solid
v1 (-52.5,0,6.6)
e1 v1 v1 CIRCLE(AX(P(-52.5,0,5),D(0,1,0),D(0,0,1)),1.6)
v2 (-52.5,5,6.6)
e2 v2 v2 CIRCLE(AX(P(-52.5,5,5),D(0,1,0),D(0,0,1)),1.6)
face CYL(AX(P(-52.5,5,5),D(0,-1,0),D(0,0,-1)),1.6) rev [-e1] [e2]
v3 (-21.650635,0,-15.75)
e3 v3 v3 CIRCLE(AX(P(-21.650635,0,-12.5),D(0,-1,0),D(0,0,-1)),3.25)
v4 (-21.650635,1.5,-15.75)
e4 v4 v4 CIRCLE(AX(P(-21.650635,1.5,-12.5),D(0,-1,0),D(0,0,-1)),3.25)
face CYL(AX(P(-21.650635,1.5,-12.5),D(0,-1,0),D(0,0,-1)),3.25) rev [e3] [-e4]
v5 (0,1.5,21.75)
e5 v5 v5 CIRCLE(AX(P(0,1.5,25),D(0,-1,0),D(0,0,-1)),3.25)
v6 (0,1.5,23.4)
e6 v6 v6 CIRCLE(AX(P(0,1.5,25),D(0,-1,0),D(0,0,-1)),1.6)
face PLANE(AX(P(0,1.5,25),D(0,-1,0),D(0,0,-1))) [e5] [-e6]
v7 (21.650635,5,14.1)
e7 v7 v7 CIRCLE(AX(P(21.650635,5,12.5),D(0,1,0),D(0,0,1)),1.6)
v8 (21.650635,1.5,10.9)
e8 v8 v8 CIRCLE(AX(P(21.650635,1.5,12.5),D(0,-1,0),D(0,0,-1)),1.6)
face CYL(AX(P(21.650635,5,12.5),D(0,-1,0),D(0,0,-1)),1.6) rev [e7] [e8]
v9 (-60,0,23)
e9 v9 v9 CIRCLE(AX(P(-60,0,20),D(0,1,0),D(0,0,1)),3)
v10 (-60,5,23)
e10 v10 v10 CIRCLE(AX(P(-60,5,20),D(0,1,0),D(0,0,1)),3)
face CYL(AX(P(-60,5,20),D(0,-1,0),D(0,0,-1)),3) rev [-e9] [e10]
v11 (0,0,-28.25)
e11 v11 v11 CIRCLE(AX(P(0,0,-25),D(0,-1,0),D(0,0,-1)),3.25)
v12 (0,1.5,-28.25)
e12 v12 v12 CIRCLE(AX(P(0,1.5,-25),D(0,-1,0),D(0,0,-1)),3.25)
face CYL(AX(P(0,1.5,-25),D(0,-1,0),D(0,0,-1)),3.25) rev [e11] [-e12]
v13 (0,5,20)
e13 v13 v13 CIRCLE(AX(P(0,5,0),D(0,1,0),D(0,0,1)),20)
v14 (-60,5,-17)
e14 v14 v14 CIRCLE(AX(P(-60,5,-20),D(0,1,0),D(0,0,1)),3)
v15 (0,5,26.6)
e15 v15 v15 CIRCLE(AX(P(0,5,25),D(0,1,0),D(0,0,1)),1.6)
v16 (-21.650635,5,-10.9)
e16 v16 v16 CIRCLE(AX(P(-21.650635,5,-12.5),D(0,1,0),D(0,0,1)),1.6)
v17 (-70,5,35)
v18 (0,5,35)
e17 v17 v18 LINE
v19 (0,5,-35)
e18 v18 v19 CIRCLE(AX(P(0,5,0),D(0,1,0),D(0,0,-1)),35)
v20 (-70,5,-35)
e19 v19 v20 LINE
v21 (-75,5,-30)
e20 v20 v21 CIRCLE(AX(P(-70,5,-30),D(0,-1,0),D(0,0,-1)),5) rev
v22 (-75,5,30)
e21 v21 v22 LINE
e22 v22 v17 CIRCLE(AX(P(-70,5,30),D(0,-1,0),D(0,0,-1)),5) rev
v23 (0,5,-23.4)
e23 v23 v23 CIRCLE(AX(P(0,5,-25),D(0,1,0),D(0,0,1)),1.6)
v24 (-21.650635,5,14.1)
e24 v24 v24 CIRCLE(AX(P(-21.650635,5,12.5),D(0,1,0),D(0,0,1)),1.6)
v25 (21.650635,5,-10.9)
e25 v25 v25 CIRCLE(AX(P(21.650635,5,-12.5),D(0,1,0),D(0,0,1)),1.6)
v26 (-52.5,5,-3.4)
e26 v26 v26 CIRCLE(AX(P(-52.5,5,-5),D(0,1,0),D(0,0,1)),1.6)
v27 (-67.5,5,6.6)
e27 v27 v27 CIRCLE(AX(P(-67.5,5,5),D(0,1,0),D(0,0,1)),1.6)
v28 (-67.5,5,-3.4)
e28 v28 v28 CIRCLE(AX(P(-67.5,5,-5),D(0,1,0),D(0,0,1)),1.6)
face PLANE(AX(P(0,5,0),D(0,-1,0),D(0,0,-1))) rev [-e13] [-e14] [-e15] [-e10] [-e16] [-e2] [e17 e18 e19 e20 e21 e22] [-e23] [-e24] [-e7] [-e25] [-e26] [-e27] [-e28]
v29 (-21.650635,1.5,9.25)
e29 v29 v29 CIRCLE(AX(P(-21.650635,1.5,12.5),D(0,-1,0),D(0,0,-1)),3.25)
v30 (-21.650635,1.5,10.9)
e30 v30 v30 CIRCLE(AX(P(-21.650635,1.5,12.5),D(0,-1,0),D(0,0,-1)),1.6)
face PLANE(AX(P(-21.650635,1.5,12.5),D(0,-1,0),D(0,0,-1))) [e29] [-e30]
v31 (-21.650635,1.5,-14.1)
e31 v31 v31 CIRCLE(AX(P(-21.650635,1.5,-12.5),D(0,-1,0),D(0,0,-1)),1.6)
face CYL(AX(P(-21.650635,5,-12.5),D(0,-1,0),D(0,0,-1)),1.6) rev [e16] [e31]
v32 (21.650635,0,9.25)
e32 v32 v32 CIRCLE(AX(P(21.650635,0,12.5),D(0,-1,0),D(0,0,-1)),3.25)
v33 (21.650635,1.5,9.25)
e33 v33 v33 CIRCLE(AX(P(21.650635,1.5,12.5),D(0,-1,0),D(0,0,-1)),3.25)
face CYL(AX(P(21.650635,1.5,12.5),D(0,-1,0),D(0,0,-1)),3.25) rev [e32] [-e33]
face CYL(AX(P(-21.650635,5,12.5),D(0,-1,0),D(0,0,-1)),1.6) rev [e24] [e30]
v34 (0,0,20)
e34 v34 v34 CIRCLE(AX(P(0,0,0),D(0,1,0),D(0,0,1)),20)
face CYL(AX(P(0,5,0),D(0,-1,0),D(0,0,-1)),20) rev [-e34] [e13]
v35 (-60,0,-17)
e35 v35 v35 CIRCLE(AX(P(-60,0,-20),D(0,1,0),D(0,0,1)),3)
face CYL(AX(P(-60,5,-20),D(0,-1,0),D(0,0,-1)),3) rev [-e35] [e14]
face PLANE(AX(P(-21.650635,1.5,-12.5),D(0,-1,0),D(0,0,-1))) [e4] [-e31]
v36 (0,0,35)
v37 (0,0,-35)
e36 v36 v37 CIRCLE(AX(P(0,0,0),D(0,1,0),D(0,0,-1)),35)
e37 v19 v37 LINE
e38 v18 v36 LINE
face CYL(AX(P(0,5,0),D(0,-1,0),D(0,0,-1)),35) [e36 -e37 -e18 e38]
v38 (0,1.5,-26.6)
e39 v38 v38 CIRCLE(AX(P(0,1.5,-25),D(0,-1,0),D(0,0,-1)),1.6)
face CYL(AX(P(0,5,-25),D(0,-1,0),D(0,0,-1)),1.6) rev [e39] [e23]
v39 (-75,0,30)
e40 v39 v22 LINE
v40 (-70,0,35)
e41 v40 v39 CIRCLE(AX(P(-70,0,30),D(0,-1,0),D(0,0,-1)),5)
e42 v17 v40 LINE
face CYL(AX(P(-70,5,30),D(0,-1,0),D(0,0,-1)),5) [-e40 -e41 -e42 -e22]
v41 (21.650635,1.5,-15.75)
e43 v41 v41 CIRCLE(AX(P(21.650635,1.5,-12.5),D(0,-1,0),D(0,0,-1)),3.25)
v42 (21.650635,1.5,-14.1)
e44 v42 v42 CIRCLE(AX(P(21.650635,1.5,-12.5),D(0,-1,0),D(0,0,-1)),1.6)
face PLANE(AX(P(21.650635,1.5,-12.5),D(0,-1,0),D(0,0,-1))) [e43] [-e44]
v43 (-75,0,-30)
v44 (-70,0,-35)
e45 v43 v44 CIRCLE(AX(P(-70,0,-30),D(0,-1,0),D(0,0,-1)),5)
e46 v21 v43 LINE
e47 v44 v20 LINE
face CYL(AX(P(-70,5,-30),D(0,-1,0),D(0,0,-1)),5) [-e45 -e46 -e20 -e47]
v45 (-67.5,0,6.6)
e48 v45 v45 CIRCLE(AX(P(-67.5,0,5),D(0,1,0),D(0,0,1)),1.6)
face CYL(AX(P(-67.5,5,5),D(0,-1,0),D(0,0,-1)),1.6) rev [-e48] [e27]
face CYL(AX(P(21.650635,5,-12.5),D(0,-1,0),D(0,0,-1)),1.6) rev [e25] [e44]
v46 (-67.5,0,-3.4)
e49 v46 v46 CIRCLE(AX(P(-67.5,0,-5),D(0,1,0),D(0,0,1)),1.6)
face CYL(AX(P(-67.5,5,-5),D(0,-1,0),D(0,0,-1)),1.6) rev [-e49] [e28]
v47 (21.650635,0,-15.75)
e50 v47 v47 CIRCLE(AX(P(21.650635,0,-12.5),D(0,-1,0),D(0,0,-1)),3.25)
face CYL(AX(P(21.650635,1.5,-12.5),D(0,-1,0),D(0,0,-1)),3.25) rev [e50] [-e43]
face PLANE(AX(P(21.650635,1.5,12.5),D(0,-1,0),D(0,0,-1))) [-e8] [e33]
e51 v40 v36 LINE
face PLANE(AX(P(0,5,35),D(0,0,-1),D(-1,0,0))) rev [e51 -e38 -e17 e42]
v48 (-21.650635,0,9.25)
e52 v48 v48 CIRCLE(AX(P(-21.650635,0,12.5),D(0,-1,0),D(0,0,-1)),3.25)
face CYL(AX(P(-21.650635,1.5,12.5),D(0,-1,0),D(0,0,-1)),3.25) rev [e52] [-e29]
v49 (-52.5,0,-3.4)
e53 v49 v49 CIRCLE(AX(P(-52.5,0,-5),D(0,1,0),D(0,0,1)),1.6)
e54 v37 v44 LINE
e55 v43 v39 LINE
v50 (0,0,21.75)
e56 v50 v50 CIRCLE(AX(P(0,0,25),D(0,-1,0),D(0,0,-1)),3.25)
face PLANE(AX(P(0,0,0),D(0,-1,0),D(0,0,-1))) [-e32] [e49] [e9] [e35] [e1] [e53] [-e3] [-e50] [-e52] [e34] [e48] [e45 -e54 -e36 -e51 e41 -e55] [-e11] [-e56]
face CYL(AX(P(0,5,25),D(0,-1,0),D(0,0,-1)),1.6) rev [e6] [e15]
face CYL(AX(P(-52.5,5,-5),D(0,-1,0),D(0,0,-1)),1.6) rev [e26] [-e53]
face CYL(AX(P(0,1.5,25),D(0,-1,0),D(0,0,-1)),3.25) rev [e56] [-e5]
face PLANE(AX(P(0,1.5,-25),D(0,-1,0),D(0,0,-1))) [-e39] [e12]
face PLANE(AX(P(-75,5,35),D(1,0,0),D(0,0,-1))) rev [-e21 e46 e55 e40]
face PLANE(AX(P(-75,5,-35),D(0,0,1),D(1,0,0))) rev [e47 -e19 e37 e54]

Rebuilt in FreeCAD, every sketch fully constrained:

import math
import FreeCAD as App
import Part
import Sketcher


def edges_at(feature, points):
    """Names of the edges that pass closest to the given points."""
    edges = feature.Shape.Edges
    near = lambda p: min(range(len(edges)), key=lambda i: edges[i].distToShape(Part.Vertex(*p))[0])
    return sorted({f"Edge{near(p) + 1}" for p in points})

doc = App.newDocument("Part")
params = doc.addObject("Spreadsheet::Sheet", "Params")
for row, (alias, value) in enumerate([
    ("sketch1_diameter", "6 mm"),
    ("sketch1_diameter2", "40 mm"),
    ("sketch1_radius", "35 mm"),
    ("sketch1_diameter3", "3.2 mm"),
    ("sketch1_width", "75 mm"),
    ("pad1_length", "5 mm"),
    ("fillet_radius", "5 mm"),
    ("sketch2_diameter", "6.5 mm"),
    ("pocket1_length", "1.5 mm"),
], start=1):
    params.set(f"A{row}", alias)
    params.set(f"B{row}", "=" + value)
    params.setAlias(f"B{row}", alias)

body = doc.addObject("PartDesign::Body", "Body")

sketch1 = doc.addObject("Sketcher::SketchObject", "Sketch")
body.addObject(sketch1)
sketch1.AttachmentSupport = (doc.XZ_Plane, [""])
sketch1.MapMode = "FlatFace"
sketch1.addGeometry([
    Part.LineSegment(App.Vector(0, -35, 0), App.Vector(-75, -35, 0)),
    Part.LineSegment(App.Vector(-75, -35, 0), App.Vector(-75, 35, 0)),
    Part.LineSegment(App.Vector(-75, 35, 0), App.Vector(0, 35, 0)),
    Part.ArcOfCircle(Part.Circle(App.Vector(0, 0, 0), App.Vector(0, 0, 1), 35), math.radians(-90), math.radians(90)),
    Part.Circle(App.Vector(0, 25, 0), App.Vector(0, 0, 1), 1.6),
    Part.Circle(App.Vector(21.650635, 12.5, 0), App.Vector(0, 0, 1), 1.6),
    Part.Circle(App.Vector(-21.650635, 12.5, 0), App.Vector(0, 0, 1), 1.6),
    Part.Circle(App.Vector(-60, 20, 0), App.Vector(0, 0, 1), 3),
    Part.Circle(App.Vector(-52.5, 5, 0), App.Vector(0, 0, 1), 1.6),
    Part.Circle(App.Vector(-67.5, 5, 0), App.Vector(0, 0, 1), 1.6),
    Part.Circle(App.Vector(21.650635, -12.5, 0), App.Vector(0, 0, 1), 1.6),
    Part.Circle(App.Vector(0, 0, 0), App.Vector(0, 0, 1), 20),
    Part.Circle(App.Vector(-21.650635, -12.5, 0), App.Vector(0, 0, 1), 1.6),
    Part.Circle(App.Vector(0, -25, 0), App.Vector(0, 0, 1), 1.6),
    Part.Circle(App.Vector(-52.5, -5, 0), App.Vector(0, 0, 1), 1.6),
    Part.Circle(App.Vector(-67.5, -5, 0), App.Vector(0, 0, 1), 1.6),
    Part.Circle(App.Vector(-60, -20, 0), App.Vector(0, 0, 1), 3),
], False)
sketch1.addConstraint([
    Sketcher.Constraint("Coincident", 0, 2, 1, 1),
    Sketcher.Constraint("Coincident", 1, 2, 2, 1),
    Sketcher.Constraint("Tangent", 2, 2, 3, 2),
    Sketcher.Constraint("Tangent", 3, 1, 0, 1),
    Sketcher.Constraint("Horizontal", 0),
    Sketcher.Constraint("Vertical", 1),
    Sketcher.Constraint("Horizontal", 2),
    Sketcher.Constraint("Coincident", 3, 3, -1, 1),
    Sketcher.Constraint("Coincident", 11, 3, -1, 1),
    Sketcher.Constraint("Equal", 4, 5),
    Sketcher.Constraint("Equal", 5, 6),
    Sketcher.Constraint("Equal", 6, 8),
    Sketcher.Constraint("Equal", 8, 9),
    Sketcher.Constraint("Equal", 9, 10),
    Sketcher.Constraint("Equal", 10, 12),
    Sketcher.Constraint("Equal", 12, 13),
    Sketcher.Constraint("Equal", 13, 14),
    Sketcher.Constraint("Equal", 14, 15),
    Sketcher.Constraint("Equal", 7, 16),
    Sketcher.Constraint("Symmetric", 6, 3, 10, 3, -1, 1),
    Sketcher.Constraint("Symmetric", 5, 3, 12, 3, -1, 1),
    Sketcher.Constraint("Symmetric", 4, 3, 13, 3, -1, 1),
    Sketcher.Constraint("Symmetric", 5, 3, 6, 3, -2),
    Sketcher.Constraint("Symmetric", 8, 3, 14, 3, -1),
    Sketcher.Constraint("Symmetric", 9, 3, 15, 3, -1),
    Sketcher.Constraint("Symmetric", 7, 3, 16, 3, -1),
    Sketcher.Constraint("PointOnObject", 4, 3, -2),
    Sketcher.Constraint("Horizontal", 8, 3, 9, 3),
    Sketcher.Constraint("Diameter", 7, 6.0),
    Sketcher.Constraint("Diameter", 11, 40.0),
    Sketcher.Constraint("Radius", 3, 35.0),
    Sketcher.Constraint("Diameter", 4, 3.2),
    Sketcher.Constraint("DistanceX", 0, 2, 0, 1, 75.0),
    Sketcher.Constraint("DistanceY", -1, 1, 4, 3, 25.0),
    Sketcher.Constraint("DistanceX", 7, 3, -1, 1, 60.0),
    Sketcher.Constraint("DistanceY", -1, 1, 7, 3, 20.0),
    Sketcher.Constraint("DistanceY", -1, 1, 8, 3, 5.0),
    Sketcher.Constraint("DistanceX", 9, 3, 8, 3, 15.0),
    Sketcher.Constraint("DistanceY", 10, 3, 5, 3, 25.0),
    Sketcher.Constraint("DistanceX", 8, 3, -1, 1, 52.5),
    Sketcher.Constraint("DistanceX", 6, 3, 5, 3, 43.30127),
])
sketch1.setExpression("Constraints[28]", "Params.sketch1_diameter")
sketch1.setExpression("Constraints[29]", "Params.sketch1_diameter2")
sketch1.setExpression("Constraints[30]", "Params.sketch1_radius")
sketch1.setExpression("Constraints[31]", "Params.sketch1_diameter3")
sketch1.setExpression("Constraints[32]", "Params.sketch1_width")
pad1 = doc.addObject("PartDesign::Pad", "Pad")
body.addObject(pad1)
pad1.Profile = sketch1
pad1.setExpression("Length", "Params.pad1_length")
pad1.Reversed = True
doc.recompute()

fillet = doc.addObject("PartDesign::Fillet", "Fillet")
body.addObject(fillet)
fillet.Base = (pad1, edges_at(pad1, [(-75, 2.5, -35), (-75, 2.5, 35)]))
fillet.setExpression("Radius", "Params.fillet_radius")

sketch2 = doc.addObject("Sketcher::SketchObject", "Sketch001")
body.addObject(sketch2)
sketch2.AttachmentSupport = (doc.XZ_Plane, [""])
sketch2.MapMode = "FlatFace"
sketch2.addGeometry([
    Part.Circle(App.Vector(0, 25, 0), App.Vector(0, 0, 1), 3.25),
    Part.Circle(App.Vector(21.650635, 12.5, 0), App.Vector(0, 0, 1), 3.25),
    Part.Circle(App.Vector(21.650635, -12.5, 0), App.Vector(0, 0, 1), 3.25),
    Part.Circle(App.Vector(0, -25, 0), App.Vector(0, 0, 1), 3.25),
    Part.Circle(App.Vector(-21.650635, -12.5, 0), App.Vector(0, 0, 1), 3.25),
    Part.Circle(App.Vector(-21.650635, 12.5, 0), App.Vector(0, 0, 1), 3.25),
], False)
sketch2.addConstraint([
    Sketcher.Constraint("Equal", 0, 1),
    Sketcher.Constraint("Equal", 1, 2),
    Sketcher.Constraint("Equal", 2, 3),
    Sketcher.Constraint("Equal", 3, 4),
    Sketcher.Constraint("Equal", 4, 5),
    Sketcher.Constraint("Symmetric", 0, 3, 3, 3, -1, 1),
    Sketcher.Constraint("Symmetric", 1, 3, 4, 3, -1, 1),
    Sketcher.Constraint("Symmetric", 2, 3, 5, 3, -1, 1),
    Sketcher.Constraint("Symmetric", 2, 3, 4, 3, -2),
    Sketcher.Constraint("PointOnObject", 0, 3, -2),
    Sketcher.Constraint("Diameter", 0, 6.5),
    Sketcher.Constraint("DistanceY", -1, 1, 0, 3, 25.0),
    Sketcher.Constraint("DistanceY", 2, 3, 1, 3, 25.0),
    Sketcher.Constraint("DistanceX", 4, 3, 2, 3, 43.30127),
])
sketch2.setExpression("Constraints[10]", "Params.sketch2_diameter")
pocket1 = doc.addObject("PartDesign::Pocket", "Pocket")
body.addObject(pocket1)
pocket1.Profile = sketch2
pocket1.setExpression("Length", "Params.pocket1_length")

doc.recompute()
